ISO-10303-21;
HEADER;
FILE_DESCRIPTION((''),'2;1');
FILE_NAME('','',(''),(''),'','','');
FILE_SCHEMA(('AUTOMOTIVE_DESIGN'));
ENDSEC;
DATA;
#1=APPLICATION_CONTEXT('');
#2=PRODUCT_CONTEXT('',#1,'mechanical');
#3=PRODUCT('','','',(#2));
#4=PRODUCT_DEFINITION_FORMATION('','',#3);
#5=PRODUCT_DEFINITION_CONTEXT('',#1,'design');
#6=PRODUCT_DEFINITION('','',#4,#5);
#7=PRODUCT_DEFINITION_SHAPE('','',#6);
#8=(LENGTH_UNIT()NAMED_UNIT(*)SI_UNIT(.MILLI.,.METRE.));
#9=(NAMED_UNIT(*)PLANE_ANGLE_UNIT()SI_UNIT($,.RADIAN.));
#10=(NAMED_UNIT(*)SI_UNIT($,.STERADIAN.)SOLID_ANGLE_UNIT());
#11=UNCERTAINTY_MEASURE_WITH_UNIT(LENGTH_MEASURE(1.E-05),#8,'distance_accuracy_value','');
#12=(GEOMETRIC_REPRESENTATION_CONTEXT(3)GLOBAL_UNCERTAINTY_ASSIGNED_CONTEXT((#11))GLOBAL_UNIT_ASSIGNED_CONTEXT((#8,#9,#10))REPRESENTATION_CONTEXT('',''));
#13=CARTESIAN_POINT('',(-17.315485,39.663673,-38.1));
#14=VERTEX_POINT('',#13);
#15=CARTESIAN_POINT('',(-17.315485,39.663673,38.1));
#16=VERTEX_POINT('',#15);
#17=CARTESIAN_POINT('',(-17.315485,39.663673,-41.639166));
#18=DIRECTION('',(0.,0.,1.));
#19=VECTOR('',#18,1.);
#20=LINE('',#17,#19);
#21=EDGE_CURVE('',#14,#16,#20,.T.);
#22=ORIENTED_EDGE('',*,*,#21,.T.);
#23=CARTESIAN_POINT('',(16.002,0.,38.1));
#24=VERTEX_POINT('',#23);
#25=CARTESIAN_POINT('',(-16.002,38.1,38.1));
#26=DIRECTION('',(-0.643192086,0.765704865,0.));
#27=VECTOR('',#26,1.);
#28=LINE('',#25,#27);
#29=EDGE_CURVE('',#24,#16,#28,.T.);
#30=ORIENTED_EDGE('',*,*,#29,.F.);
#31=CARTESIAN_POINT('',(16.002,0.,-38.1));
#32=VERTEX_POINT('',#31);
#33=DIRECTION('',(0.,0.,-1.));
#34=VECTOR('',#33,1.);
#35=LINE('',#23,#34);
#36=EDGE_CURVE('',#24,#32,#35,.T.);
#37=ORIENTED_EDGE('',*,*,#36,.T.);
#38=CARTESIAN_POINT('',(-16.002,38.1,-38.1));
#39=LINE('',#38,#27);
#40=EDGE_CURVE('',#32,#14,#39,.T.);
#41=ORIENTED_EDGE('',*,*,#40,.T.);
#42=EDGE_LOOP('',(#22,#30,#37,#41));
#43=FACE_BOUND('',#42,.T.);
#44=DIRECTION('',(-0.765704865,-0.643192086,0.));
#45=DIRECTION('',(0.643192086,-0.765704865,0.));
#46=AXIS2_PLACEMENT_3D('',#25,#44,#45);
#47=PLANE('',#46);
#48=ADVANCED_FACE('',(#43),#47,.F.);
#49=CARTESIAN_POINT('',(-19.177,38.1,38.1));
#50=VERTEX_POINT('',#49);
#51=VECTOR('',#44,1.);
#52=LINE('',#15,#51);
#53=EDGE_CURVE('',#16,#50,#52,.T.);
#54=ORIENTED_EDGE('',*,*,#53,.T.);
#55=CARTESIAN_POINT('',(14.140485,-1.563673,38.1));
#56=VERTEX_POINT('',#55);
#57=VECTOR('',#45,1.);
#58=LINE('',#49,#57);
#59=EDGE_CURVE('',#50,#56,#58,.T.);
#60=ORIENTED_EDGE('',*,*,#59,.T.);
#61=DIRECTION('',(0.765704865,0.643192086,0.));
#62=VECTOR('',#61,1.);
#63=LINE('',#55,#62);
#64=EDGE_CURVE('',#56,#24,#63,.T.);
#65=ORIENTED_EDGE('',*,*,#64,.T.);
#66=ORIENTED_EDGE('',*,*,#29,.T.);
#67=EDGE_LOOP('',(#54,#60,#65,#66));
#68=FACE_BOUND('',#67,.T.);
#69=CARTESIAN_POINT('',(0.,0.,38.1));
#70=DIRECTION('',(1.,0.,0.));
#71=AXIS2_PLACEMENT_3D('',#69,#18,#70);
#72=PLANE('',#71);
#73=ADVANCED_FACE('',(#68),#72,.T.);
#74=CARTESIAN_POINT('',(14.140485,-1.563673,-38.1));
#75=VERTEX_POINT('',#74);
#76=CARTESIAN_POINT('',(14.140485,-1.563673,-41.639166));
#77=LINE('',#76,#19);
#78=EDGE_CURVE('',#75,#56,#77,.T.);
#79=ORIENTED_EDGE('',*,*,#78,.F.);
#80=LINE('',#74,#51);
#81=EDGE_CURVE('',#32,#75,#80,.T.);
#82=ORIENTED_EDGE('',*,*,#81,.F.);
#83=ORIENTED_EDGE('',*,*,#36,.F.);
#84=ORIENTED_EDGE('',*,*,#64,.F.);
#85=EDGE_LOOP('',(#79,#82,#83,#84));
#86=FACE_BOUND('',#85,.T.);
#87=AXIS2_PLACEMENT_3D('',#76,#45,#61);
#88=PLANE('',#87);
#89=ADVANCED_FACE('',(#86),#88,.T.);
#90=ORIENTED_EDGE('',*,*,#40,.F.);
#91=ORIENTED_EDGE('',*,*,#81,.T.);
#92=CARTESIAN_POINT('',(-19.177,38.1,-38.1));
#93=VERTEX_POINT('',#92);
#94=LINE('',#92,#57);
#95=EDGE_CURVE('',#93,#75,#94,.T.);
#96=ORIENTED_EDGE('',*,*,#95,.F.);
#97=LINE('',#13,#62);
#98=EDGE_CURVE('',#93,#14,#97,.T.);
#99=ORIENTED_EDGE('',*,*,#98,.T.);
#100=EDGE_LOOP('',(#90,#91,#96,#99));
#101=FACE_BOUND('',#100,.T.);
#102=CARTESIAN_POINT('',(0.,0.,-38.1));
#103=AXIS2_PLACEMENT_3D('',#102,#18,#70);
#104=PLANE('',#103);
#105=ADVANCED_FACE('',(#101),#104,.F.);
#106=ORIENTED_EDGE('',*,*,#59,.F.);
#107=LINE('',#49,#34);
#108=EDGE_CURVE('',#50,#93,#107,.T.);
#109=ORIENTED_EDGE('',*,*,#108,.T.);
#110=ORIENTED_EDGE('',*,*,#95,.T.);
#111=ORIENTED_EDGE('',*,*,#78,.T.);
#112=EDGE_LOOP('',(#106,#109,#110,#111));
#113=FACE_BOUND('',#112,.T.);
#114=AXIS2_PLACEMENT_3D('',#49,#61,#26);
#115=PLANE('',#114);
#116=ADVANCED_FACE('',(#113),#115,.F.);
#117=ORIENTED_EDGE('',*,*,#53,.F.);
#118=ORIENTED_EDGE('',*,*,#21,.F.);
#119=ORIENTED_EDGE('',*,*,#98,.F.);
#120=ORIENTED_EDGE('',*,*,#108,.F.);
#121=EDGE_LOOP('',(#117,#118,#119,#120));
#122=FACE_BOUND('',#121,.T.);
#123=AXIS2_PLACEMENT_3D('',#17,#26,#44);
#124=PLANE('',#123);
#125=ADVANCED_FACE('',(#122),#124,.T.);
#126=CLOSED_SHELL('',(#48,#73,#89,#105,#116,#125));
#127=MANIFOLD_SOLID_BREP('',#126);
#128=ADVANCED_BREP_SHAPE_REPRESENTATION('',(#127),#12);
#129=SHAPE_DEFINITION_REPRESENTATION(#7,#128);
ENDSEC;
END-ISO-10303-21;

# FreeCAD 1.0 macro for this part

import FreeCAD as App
import Part
import Sketcher
Q = App.Units.Quantity


def add_polygon(sketch, points):
    """Adds a closed chain of lines whose ends are joined by coincident constraints."""
    first, n = sketch.GeometryCount, len(points)
    for a, b in zip(points, points[1:] + points[:1]):
        sketch.addGeometry(Part.LineSegment(App.Vector(*a, 0), App.Vector(*b, 0)), False)
    for i in range(n):
        sketch.addConstraint(Sketcher.Constraint("Coincident", first + i, 2, first + (i + 1) % n, 1))

doc = App.newDocument("Part")
body = doc.addObject("PartDesign::Body", "Body")

# Sketch on XY plane
sketch1 = doc.addObject("Sketcher::SketchObject", "Sketch")
body.addObject(sketch1)
sketch1.AttachmentSupport = (doc.XY_Plane, [""])
sketch1.MapMode = "FlatFace"
add_polygon(sketch1, [(16.002, 0), (-16.002, 38.1), (-19.177, 38.1), (12.827, 0)])  # lines 0-3
sketch1.addConstraint(Sketcher.Constraint("Horizontal", 1))
sketch1.addConstraint(Sketcher.Constraint("Horizontal", 3))
sketch1.addConstraint(Sketcher.Constraint("PointOnObject", 2, 2, -1))
sketch1.addConstraint(Sketcher.Constraint("Parallel", 0, 2))
sketch1.addConstraint(Sketcher.Constraint("DistanceY", -1, 1, 0, 2, Q("1.5 in")))
sketch1.addConstraint(Sketcher.Constraint("DistanceX", 1, 2, 1, 1, Q("0.125 in")))
sketch1.addConstraint(Sketcher.Constraint("DistanceX", 0, 2, -1, 1, Q("0.63 in")))
sketch1.addConstraint(Sketcher.Constraint("DistanceX", -1, 1, 3, 2, Q("0.63 in")))
pad1 = doc.addObject("PartDesign::Pad", "Pad")
body.addObject(pad1)
pad1.Profile = sketch1
pad1.Length = Q("3 in")
pad1.Midplane = True

# Sketch on XY plane
sketch2 = doc.addObject("Sketcher::SketchObject", "Sketch001")
body.addObject(sketch2)
sketch2.AttachmentSupport = (doc.XY_Plane, [""])
sketch2.MapMode = "FlatFace"
sketch2.AttachmentOffset = App.Placement(App.Vector(0, 0, 1.5 * 25.4), App.Rotation())
add_polygon(sketch2, [(12.827, 0), (14.140485, -1.563673), (16.002, 0)])  # lines 0-2
add_polygon(sketch2, [(-16.002, 38.1), (-17.315485, 39.663673), (-19.177, 38.1)])  # lines 3-5
sketch2.addConstraint(Sketcher.Constraint("Horizontal", 2))
sketch2.addConstraint(Sketcher.Constraint("Horizontal", 5))
sketch2.addConstraint(Sketcher.Constraint("PointOnObject", 1, 2, -1))
sketch2.addConstraint(Sketcher.Constraint("Perpendicular", 0, 1))
sketch2.addConstraint(Sketcher.Constraint("Perpendicular", 1, 3))
sketch2.addConstraint(Sketcher.Constraint("Perpendicular", 3, 4))
sketch2.addConstraint(Sketcher.Constraint("Equal", 2, 5))
sketch2.addConstraint(Sketcher.Constraint("DistanceY", -1, 1, 4, 2, Q("1.5 in")))
sketch2.addConstraint(Sketcher.Constraint("DistanceX", 2, 2, 2, 1, Q("0.125 in")))
sketch2.addConstraint(Sketcher.Constraint("DistanceX", -1, 1, 1, 2, Q("0.63 in")))
sketch2.addConstraint(Sketcher.Constraint("DistanceX", 5, 2, -1, 1, Q("0.63 in")))
sketch2.addConstraint(Sketcher.Constraint("DistanceX", 3, 2, 0, 2, 31.45597))
pad2 = doc.addObject("PartDesign::Pad", "Pad001")
body.addObject(pad2)
pad2.Profile = sketch2
pad2.Length = Q("3 in")
pad2.Reversed = True

doc.recompute()
